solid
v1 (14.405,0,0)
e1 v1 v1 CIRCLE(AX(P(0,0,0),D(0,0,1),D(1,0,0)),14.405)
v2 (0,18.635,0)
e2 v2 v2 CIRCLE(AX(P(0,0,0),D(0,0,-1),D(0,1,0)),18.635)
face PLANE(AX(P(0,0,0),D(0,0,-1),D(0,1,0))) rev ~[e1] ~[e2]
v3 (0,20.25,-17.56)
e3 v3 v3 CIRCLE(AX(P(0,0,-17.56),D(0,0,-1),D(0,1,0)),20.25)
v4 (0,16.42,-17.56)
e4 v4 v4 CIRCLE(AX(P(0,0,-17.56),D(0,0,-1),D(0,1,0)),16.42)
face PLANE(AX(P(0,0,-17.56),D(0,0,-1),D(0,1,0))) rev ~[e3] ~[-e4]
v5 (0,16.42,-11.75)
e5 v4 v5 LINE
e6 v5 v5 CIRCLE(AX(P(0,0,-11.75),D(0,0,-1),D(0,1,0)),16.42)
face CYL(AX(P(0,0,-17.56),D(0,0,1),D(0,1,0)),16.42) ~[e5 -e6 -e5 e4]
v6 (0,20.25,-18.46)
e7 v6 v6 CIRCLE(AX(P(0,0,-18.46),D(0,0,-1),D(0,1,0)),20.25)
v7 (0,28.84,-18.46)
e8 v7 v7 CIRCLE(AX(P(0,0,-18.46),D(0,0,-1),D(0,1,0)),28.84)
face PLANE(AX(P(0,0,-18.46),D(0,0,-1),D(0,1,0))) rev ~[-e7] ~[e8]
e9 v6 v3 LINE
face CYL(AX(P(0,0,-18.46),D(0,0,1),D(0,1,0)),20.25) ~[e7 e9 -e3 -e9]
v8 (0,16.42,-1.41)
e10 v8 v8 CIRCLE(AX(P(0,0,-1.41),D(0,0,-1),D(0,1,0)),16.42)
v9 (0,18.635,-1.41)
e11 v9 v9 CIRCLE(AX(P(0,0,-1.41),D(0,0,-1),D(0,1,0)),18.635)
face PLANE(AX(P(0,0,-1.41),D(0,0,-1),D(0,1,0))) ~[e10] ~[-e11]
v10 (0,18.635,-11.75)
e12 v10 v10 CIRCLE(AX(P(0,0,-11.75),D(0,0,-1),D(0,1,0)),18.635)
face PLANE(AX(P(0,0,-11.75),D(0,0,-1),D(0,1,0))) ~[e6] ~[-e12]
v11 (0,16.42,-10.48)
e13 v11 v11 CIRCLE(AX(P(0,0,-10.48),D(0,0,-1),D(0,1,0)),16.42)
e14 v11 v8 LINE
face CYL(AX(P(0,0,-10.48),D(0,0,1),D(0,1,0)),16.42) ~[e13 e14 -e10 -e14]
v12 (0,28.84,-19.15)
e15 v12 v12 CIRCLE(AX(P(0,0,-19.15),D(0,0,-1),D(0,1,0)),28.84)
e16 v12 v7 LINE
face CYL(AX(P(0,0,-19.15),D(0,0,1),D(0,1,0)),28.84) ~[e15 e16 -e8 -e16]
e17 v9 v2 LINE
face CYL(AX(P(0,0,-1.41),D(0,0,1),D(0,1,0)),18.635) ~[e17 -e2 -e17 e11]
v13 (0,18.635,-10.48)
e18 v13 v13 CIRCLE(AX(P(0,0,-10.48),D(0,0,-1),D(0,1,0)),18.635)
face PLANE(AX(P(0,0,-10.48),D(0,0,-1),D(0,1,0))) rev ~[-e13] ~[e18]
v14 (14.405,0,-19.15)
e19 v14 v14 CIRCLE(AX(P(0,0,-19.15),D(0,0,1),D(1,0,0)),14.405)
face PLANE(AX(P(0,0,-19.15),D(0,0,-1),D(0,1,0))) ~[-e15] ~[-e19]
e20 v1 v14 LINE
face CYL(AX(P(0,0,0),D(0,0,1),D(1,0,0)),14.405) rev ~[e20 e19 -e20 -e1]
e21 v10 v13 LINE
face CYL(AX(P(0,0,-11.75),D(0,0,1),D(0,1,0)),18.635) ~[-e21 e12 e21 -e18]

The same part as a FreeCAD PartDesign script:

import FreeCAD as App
import Part
import Sketcher

doc = App.newDocument("Part")
params = doc.addObject("Spreadsheet::Sheet", "Params")
for row, (alias, value) in enumerate([
    ("sketch1_height", "0.9 mm"),
    ("sketch1_width", "28.84 mm"),
    ("sketch1_width2", "8.59 mm"),
    ("sketch1_width3", "3.83 mm"),
    ("sketch1_height2", "19.15 mm"),
    ("revolution_angle", "360 deg"),
    ("sketch2_diameter", "28.81 mm"),
], start=1):
    params.set(f"A{row}", alias)
    params.set(f"B{row}", "=" + value)
    params.setAlias(f"B{row}", alias)

body = doc.addObject("PartDesign::Body", "Body")

# Sketch on YZ plane
sketch1 = doc.addObject("Sketcher::SketchObject", "Sketch")
body.addObject(sketch1)
sketch1.AttachmentSupport = (doc.YZ_Plane, [""])
sketch1.MapMode = "FlatFace"
sketch1.addGeometry(Part.LineSegment(App.Vector(0, 0, 0), App.Vector(0, -19.15, 0)), False)
sketch1.addGeometry(Part.LineSegment(App.Vector(0, -19.15, 0), App.Vector(28.84, -19.15, 0)), False)
sketch1.addGeometry(Part.LineSegment(App.Vector(28.84, -19.15, 0), App.Vector(28.84, -18.46, 0)), False)
sketch1.addGeometry(Part.LineSegment(App.Vector(28.84, -18.46, 0), App.Vector(20.25, -18.46, 0)), False)
sketch1.addGeometry(Part.LineSegment(App.Vector(20.25, -18.46, 0), App.Vector(20.25, -17.56, 0)), False)
sketch1.addGeometry(Part.LineSegment(App.Vector(20.25, -17.56, 0), App.Vector(16.42, -17.56, 0)), False)
sketch1.addGeometry(Part.LineSegment(App.Vector(16.42, -17.56, 0), App.Vector(16.42, -11.75, 0)), False)
sketch1.addGeometry(Part.LineSegment(App.Vector(16.42, -11.75, 0), App.Vector(18.635, -11.75, 0)), False)
sketch1.addGeometry(Part.LineSegment(App.Vector(18.635, -11.75, 0), App.Vector(18.635, -10.48, 0)), False)
sketch1.addGeometry(Part.LineSegment(App.Vector(18.635, -10.48, 0), App.Vector(16.42, -10.48, 0)), False)
sketch1.addGeometry(Part.LineSegment(App.Vector(16.42, -10.48, 0), App.Vector(16.42, -1.41, 0)), False)
sketch1.addGeometry(Part.LineSegment(App.Vector(16.42, -1.41, 0), App.Vector(18.635, -1.41, 0)), False)
sketch1.addGeometry(Part.LineSegment(App.Vector(18.635, -1.41, 0), App.Vector(18.635, 0, 0)), False)
sketch1.addGeometry(Part.LineSegment(App.Vector(18.635, 0, 0), App.Vector(0, 0, 0)), False)
sketch1.addConstraint(Sketcher.Constraint("Coincident", 0, 2, 1, 1))
sketch1.addConstraint(Sketcher.Constraint("Coincident", 1, 2, 2, 1))
sketch1.addConstraint(Sketcher.Constraint("Coincident", 2, 2, 3, 1))
sketch1.addConstraint(Sketcher.Constraint("Coincident", 3, 2, 4, 1))
sketch1.addConstraint(Sketcher.Constraint("Coincident", 4, 2, 5, 1))
sketch1.addConstraint(Sketcher.Constraint("Coincident", 5, 2, 6, 1))
sketch1.addConstraint(Sketcher.Constraint("Coincident", 6, 2, 7, 1))
sketch1.addConstraint(Sketcher.Constraint("Coincident", 7, 2, 8, 1))
sketch1.addConstraint(Sketcher.Constraint("Coincident", 8, 2, 9, 1))
sketch1.addConstraint(Sketcher.Constraint("Coincident", 9, 2, 10, 1))
sketch1.addConstraint(Sketcher.Constraint("Coincident", 10, 2, 11, 1))
sketch1.addConstraint(Sketcher.Constraint("Coincident", 11, 2, 12, 1))
sketch1.addConstraint(Sketcher.Constraint("Coincident", 12, 2, 13, 1))
sketch1.addConstraint(Sketcher.Constraint("Coincident", 13, 2, 0, 1))
sketch1.addConstraint(Sketcher.Constraint("Vertical", 0))
sketch1.addConstraint(Sketcher.Constraint("Horizontal", 1))
sketch1.addConstraint(Sketcher.Constraint("Vertical", 2))
sketch1.addConstraint(Sketcher.Constraint("Horizontal", 3))
sketch1.addConstraint(Sketcher.Constraint("Vertical", 4))
sketch1.addConstraint(Sketcher.Constraint("Horizontal", 5))
sketch1.addConstraint(Sketcher.Constraint("Vertical", 6))
sketch1.addConstraint(Sketcher.Constraint("Horizontal", 7))
sketch1.addConstraint(Sketcher.Constraint("Vertical", 8))
sketch1.addConstraint(Sketcher.Constraint("Horizontal", 9))
sketch1.addConstraint(Sketcher.Constraint("Vertical", 10))
sketch1.addConstraint(Sketcher.Constraint("Horizontal", 11))
sketch1.addConstraint(Sketcher.Constraint("Vertical", 12))
sketch1.addConstraint(Sketcher.Constraint("Horizontal", 13))
sketch1.addConstraint(Sketcher.Constraint("Coincident", 13, 2, -1, 1))
sketch1.addConstraint(Sketcher.Constraint("Vertical", 6, 2, 9, 2))
sketch1.addConstraint(Sketcher.Constraint("Vertical", 8, 2, 11, 2))
sketch1.addConstraint(Sketcher.Constraint("DistanceY", 4, 1, 4, 2, 0.9))
sketch1.addConstraint(Sketcher.Constraint("DistanceX", 1, 1, 1, 2, 28.84))
sketch1.addConstraint(Sketcher.Constraint("DistanceX", 3, 2, 3, 1, 8.59))
sketch1.addConstraint(Sketcher.Constraint("DistanceX", 5, 2, 5, 1, 3.83))
sketch1.addConstraint(Sketcher.Constraint("DistanceY", 0, 2, 0, 1, 19.15))
sketch1.addConstraint(Sketcher.Constraint("DistanceY", 2, 1, 2, 2, 0.69))
sketch1.addConstraint(Sketcher.Constraint("DistanceY", 6, 1, 6, 2, 5.81))
sketch1.addConstraint(Sketcher.Constraint("DistanceY", 8, 1, 8, 2, 1.27))
sketch1.addConstraint(Sketcher.Constraint("DistanceY", 10, 1, 10, 2, 9.07))
sketch1.addConstraint(Sketcher.Constraint("DistanceX", 7, 1, 7, 2, 2.215))
sketch1.setExpression("Constraints[31]", "Params.sketch1_height")
sketch1.setExpression("Constraints[32]", "Params.sketch1_width")
sketch1.setExpression("Constraints[33]", "Params.sketch1_width2")
sketch1.setExpression("Constraints[34]", "Params.sketch1_width3")
sketch1.setExpression("Constraints[35]", "Params.sketch1_height2")
revolution = doc.addObject("PartDesign::Revolution", "Revolution")
body.addObject(revolution)
revolution.Profile = sketch1
revolution.ReferenceAxis = (sketch1, ["V_Axis"])
revolution.setExpression("Angle", "Params.revolution_angle")

# Sketch on XY plane
sketch2 = doc.addObject("Sketcher::SketchObject", "Sketch001")
body.addObject(sketch2)
sketch2.AttachmentSupport = (doc.XY_Plane, [""])
sketch2.MapMode = "FlatFace"
sketch2.addGeometry(Part.Circle(App.Vector(0, 0, 0), App.Vector(0, 0, 1), 14.405), False)
sketch2.addConstraint(Sketcher.Constraint("Coincident", 0, 3, -1, 1))
sketch2.addConstraint(Sketcher.Constraint("Diameter", 0, 28.81))
sketch2.setExpression("Constraints[1]", "Params.sketch2_diameter")
pocket1 = doc.addObject("PartDesign::Pocket", "Pocket")
body.addObject(pocket1)
pocket1.Profile = sketch2
pocket1.Type = "ThroughAll"

doc.recompute()
